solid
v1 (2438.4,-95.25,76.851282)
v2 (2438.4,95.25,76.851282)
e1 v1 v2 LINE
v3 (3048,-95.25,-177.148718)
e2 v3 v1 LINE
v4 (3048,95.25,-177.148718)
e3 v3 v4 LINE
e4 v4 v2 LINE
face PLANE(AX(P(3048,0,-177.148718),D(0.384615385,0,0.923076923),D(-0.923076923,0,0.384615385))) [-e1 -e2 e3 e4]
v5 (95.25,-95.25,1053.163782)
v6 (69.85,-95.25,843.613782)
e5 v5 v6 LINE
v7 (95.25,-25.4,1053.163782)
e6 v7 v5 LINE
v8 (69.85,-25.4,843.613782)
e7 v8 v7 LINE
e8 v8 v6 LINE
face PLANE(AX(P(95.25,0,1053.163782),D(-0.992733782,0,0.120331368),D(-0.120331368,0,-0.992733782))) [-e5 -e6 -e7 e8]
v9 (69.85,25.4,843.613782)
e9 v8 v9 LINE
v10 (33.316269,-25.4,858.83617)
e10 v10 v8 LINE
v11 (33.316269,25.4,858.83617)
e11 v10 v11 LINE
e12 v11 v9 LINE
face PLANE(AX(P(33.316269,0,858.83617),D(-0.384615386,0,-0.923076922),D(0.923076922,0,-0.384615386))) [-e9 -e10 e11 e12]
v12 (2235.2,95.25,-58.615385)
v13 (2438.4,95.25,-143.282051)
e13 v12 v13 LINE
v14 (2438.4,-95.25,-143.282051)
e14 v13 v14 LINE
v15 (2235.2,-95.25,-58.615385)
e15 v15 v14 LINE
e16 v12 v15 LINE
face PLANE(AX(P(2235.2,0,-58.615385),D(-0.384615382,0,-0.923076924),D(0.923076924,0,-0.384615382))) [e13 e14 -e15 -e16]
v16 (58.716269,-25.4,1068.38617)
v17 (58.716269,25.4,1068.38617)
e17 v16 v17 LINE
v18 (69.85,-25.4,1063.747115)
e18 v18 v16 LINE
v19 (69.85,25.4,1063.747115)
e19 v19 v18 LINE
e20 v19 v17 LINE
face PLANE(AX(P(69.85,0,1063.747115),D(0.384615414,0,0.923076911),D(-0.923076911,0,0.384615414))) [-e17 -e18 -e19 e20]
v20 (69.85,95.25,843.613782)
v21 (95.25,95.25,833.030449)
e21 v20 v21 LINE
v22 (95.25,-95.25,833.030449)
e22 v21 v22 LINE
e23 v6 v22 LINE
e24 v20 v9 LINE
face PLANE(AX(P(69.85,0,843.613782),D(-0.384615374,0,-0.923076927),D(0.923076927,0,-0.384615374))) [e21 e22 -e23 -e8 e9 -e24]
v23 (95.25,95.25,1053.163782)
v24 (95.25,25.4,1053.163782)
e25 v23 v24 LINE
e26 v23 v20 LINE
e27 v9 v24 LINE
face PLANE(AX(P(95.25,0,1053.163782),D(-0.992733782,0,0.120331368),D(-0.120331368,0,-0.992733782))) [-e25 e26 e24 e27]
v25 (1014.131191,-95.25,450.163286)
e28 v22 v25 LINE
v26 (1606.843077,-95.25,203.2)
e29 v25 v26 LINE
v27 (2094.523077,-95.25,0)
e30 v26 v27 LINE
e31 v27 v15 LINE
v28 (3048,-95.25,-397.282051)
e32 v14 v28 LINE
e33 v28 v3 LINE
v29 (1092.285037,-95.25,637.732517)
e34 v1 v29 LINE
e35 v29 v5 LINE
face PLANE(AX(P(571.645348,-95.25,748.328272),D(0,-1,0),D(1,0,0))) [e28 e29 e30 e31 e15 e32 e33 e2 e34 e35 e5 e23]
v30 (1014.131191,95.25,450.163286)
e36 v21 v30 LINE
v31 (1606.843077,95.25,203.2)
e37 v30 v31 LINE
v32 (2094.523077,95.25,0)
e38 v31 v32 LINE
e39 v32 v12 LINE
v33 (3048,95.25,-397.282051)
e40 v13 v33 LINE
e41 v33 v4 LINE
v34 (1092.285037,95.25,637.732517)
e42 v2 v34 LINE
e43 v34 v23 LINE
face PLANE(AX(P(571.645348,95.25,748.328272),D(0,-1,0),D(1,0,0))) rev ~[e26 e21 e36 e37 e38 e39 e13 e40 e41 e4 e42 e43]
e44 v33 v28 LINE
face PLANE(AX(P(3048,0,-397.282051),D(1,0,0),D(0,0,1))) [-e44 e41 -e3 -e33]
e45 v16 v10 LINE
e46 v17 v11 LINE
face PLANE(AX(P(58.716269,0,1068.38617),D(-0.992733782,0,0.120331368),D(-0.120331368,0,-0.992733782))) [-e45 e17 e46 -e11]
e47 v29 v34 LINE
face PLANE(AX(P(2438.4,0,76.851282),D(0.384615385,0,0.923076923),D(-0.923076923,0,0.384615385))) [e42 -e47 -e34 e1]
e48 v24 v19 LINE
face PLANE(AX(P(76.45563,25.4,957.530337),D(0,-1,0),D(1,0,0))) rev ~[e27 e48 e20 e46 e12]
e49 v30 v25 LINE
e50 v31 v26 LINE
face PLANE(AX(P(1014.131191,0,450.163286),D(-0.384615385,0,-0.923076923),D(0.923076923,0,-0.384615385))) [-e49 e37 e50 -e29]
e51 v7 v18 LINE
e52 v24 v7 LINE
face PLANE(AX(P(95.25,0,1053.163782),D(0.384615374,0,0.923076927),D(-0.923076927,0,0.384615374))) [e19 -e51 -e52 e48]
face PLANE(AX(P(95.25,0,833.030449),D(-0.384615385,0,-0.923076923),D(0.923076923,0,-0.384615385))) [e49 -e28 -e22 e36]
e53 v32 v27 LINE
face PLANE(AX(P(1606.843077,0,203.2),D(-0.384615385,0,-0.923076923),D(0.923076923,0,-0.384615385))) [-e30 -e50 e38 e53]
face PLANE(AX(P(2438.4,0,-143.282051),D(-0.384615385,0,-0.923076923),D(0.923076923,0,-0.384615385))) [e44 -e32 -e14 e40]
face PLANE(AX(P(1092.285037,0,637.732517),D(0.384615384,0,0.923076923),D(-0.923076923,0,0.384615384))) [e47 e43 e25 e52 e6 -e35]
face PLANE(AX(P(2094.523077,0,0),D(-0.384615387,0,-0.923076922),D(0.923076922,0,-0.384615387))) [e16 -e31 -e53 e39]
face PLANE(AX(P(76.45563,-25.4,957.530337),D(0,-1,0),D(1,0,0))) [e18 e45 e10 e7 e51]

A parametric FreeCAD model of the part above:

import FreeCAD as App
import Part
import Sketcher

V = App.Vector
Q = App.Units.Quantity

doc = App.newDocument("Part")
params = doc.addObject("Spreadsheet::Sheet", "Params")
for row, (alias, value) in enumerate([
    ("sketch1_length", "6 in"),
    ("sketch1_length2", "26 in"),
    ("pad1_length", "7.5 in"),
    ("pad2_length", "2 in"),
], start=1):
    params.set(f"A{row}", alias)
    params.set(f"B{row}", "=" + value)
    params.setAlias(f"B{row}", alias)

body = doc.addObject("PartDesign::Body", "Body")

# Sketch on XZ plane
sketch1 = body.newObject("Sketcher::SketchObject", "Sketch")
sketch1.AttachmentSupport = (doc.getObject("XZ_Plane"), [""])
sketch1.MapMode = "FlatFace"
sketch1.addGeometry(Part.LineSegment(V(1092, 638, 0), V(95, 1053, 0)), False)
sketch1.addGeometry(Part.LineSegment(V(95, 1053, 0), V(70, 844, 0)), False)
sketch1.addGeometry(Part.LineSegment(V(70, 844, 0), V(95, 833, 0)), False)
sketch1.addGeometry(Part.LineSegment(V(95, 833, 0), V(1014, 450, 0)), False)
sketch1.addGeometry(Part.LineSegment(V(1014, 450, 0), V(1607, 203, 0)), False)
sketch1.addGeometry(Part.LineSegment(V(1607, 203, 0), V(2095, 0, 0)), False)
sketch1.addGeometry(Part.LineSegment(V(2095, 0, 0), V(2235, -59, 0)), False)
sketch1.addGeometry(Part.LineSegment(V(2235, -59, 0), V(2438, -143, 0)), False)
sketch1.addGeometry(Part.LineSegment(V(2438, -143, 0), V(3048, -397, 0)), False)
sketch1.addGeometry(Part.LineSegment(V(3048, -397, 0), V(3048, -177, 0)), False)
sketch1.addGeometry(Part.LineSegment(V(3048, -177, 0), V(2438, 77, 0)), False)
sketch1.addGeometry(Part.LineSegment(V(2438, 77, 0), V(1092, 638, 0)), False)
sketch1.addConstraint(Sketcher.Constraint("Coincident", 0, 2, 1, 1))
sketch1.addConstraint(Sketcher.Constraint("Coincident", 1, 2, 2, 1))
sketch1.addConstraint(Sketcher.Constraint("Coincident", 2, 2, 3, 1))
sketch1.addConstraint(Sketcher.Constraint("Coincident", 3, 2, 4, 1))
sketch1.addConstraint(Sketcher.Constraint("Coincident", 4, 2, 5, 1))
sketch1.addConstraint(Sketcher.Constraint("Coincident", 5, 2, 6, 1))
sketch1.addConstraint(Sketcher.Constraint("Coincident", 6, 2, 7, 1))
sketch1.addConstraint(Sketcher.Constraint("Coincident", 7, 2, 8, 1))
sketch1.addConstraint(Sketcher.Constraint("Coincident", 8, 2, 9, 1))
sketch1.addConstraint(Sketcher.Constraint("Coincident", 9, 2, 10, 1))
sketch1.addConstraint(Sketcher.Constraint("Coincident", 10, 2, 11, 1))
sketch1.addConstraint(Sketcher.Constraint("Coincident", 11, 2, 0, 1))
sketch1.addConstraint(Sketcher.Constraint("Vertical", 9))
sketch1.addConstraint(Sketcher.Constraint("PointOnObject", 5, 2, -1))
sketch1.addConstraint(Sketcher.Constraint("Parallel", 0, 2))
sketch1.addConstraint(Sketcher.Constraint("Parallel", 2, 3))
sketch1.addConstraint(Sketcher.Constraint("Parallel", 3, 4))
sketch1.addConstraint(Sketcher.Constraint("Parallel", 4, 5))
sketch1.addConstraint(Sketcher.Constraint("Parallel", 5, 6))
sketch1.addConstraint(Sketcher.Constraint("Parallel", 6, 7))
sketch1.addConstraint(Sketcher.Constraint("Parallel", 7, 8))
sketch1.addConstraint(Sketcher.Constraint("Parallel", 8, 10))
sketch1.addConstraint(Sketcher.Constraint("Parallel", 10, 11))
sketch1.addConstraint(Sketcher.Constraint("Vertical", 0, 2, 2, 2))
sketch1.addConstraint(Sketcher.Constraint("Vertical", 7, 2, 10, 2))
sketch1.addConstraint(Sketcher.Constraint("Distance", 6, Q("6 in")))
sketch1.addConstraint(Sketcher.Constraint("Distance", 8, Q("26 in")))
sketch1.addConstraint(Sketcher.Constraint("DistanceY", -1, 1, 4, 2, Q("8 in")))
sketch1.addConstraint(Sketcher.Constraint("DistanceX", -1, 1, 6, 2, Q("88 in")))
sketch1.addConstraint(Sketcher.Constraint("DistanceX", -1, 1, 7, 2, Q("96 in")))
sketch1.addConstraint(Sketcher.Constraint("DistanceX", -1, 1, 8, 2, Q("120 in")))
sketch1.addConstraint(Sketcher.Constraint("DistanceX", 1, 2, 0, 2, Q("1 in")))
sketch1.addConstraint(Sketcher.Constraint("DistanceX", -1, 1, 0, 2, Q("3.75 in")))
sketch1.addConstraint(Sketcher.Constraint("DistanceY", 1, 2, 0, 2, Q("8.25 in")))
sketch1.addConstraint(Sketcher.Constraint("Distance", 0, Q("1080.12129 mm")))
sketch1.addConstraint(Sketcher.Constraint("DistanceX", -1, 1, 3, 2, Q("1014.131191 mm")))
sketch1.setExpression("Constraints[25]", "Params.sketch1_length")
sketch1.setExpression("Constraints[26]", "Params.sketch1_length2")
pad1 = body.newObject("PartDesign::Pad", "Pad")
pad1.Profile = sketch1
pad1.setExpression("Length", "Params.pad1_length")
pad1.Midplane = True

# Sketch on XZ plane
sketch2 = body.newObject("Sketcher::SketchObject", "Sketch001")
sketch2.AttachmentSupport = (doc.getObject("XZ_Plane"), [""])
sketch2.MapMode = "FlatFace"
sketch2.addGeometry(Part.LineSegment(V(70, 844, 0), V(95, 1053, 0)), False)
sketch2.addGeometry(Part.LineSegment(V(95, 1053, 0), V(70, 1064, 0)), False)
sketch2.addGeometry(Part.LineSegment(V(70, 1064, 0), V(59, 1068, 0)), False)
sketch2.addGeometry(Part.LineSegment(V(59, 1068, 0), V(33, 859, 0)), False)
sketch2.addGeometry(Part.LineSegment(V(33, 859, 0), V(70, 844, 0)), False)
sketch2.addConstraint(Sketcher.Constraint("Coincident", 0, 2, 1, 1))
sketch2.addConstraint(Sketcher.Constraint("Coincident", 1, 2, 2, 1))
sketch2.addConstraint(Sketcher.Constraint("Coincident", 2, 2, 3, 1))
sketch2.addConstraint(Sketcher.Constraint("Coincident", 3, 2, 4, 1))
sketch2.addConstraint(Sketcher.Constraint("Coincident", 4, 2, 0, 1))
sketch2.addConstraint(Sketcher.Constraint("Parallel", 1, 2))
sketch2.addConstraint(Sketcher.Constraint("Parallel", 0, 3))
sketch2.addConstraint(Sketcher.Constraint("Parallel", 2, 4))
sketch2.addConstraint(Sketcher.Constraint("Vertical", 1, 2, 4, 2))
sketch2.addConstraint(Sketcher.Constraint("DistanceX", 1, 2, 0, 2, Q("1 in")))
sketch2.addConstraint(Sketcher.Constraint("DistanceX", -1, 1, 0, 2, Q("3.75 in")))
sketch2.addConstraint(Sketcher.Constraint("DistanceY", 3, 2, 2, 2, Q("8.25 in")))
sketch2.addConstraint(Sketcher.Constraint("Distance", 4, Q("39.578209 mm")))
sketch2.addConstraint(Sketcher.Constraint("DistanceY", -1, 1, 0, 2, Q("1053.163782 mm")))
sketch2.addConstraint(Sketcher.Constraint("DistanceX", -1, 1, 2, 2, Q("58.716269 mm")))
pad2 = body.newObject("PartDesign::Pad", "Pad001")
pad2.Profile = sketch2
pad2.setExpression("Length", "Params.pad2_length")
pad2.Midplane = True

doc.recompute()
